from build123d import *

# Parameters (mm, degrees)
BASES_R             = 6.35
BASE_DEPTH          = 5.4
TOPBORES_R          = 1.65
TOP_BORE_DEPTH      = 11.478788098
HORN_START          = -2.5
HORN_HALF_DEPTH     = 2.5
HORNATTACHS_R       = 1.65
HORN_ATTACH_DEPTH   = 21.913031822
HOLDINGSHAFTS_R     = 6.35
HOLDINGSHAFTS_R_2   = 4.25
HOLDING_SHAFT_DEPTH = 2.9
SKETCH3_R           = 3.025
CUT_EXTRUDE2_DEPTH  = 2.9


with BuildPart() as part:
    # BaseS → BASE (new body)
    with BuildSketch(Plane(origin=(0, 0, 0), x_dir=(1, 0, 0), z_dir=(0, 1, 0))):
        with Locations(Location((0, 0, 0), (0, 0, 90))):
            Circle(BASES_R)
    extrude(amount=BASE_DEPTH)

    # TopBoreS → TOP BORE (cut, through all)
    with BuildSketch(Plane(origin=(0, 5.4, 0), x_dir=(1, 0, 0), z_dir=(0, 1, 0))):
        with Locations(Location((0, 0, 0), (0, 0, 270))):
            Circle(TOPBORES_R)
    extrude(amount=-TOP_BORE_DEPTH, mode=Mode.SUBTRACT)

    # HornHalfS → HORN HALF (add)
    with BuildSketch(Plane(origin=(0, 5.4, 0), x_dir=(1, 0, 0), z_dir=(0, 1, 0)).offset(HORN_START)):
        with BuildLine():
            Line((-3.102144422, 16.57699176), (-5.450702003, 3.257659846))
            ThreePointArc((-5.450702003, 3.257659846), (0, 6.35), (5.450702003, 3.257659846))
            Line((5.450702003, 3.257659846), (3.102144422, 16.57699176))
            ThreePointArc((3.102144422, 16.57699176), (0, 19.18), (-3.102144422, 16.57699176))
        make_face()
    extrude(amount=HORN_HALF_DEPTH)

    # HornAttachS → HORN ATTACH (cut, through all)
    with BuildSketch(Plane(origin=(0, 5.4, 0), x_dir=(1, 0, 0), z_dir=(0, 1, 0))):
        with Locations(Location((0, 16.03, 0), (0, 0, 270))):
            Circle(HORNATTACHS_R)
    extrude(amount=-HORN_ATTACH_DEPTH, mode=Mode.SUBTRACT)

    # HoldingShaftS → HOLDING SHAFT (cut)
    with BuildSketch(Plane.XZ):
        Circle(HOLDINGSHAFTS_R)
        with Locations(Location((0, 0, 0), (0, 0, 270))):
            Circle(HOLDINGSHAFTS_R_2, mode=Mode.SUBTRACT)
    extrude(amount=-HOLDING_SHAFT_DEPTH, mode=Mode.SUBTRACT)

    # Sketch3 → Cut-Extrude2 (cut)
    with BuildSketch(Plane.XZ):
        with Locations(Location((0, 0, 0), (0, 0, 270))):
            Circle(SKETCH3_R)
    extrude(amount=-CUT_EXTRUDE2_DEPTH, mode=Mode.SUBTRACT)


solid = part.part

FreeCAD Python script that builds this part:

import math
import FreeCAD as App
import Part
import Sketcher
Q = App.Units.Quantity

doc = App.newDocument("Part")
params = doc.addObject("Spreadsheet::Sheet", "Params")
for row, (alias, value) in enumerate([
    ("sketch1_diameter", "12.7 mm"),
    ("pad1_length", "5.4 mm"),
    ("sketch2_diameter", "3.3 mm"),
    ("sketch3_radius", "6.35 mm"),
    ("sketch3_radius2", "3.15 mm"),
    ("pad2_length", "2.5 mm"),
    ("sketch4_diameter", "3.3 mm"),
    ("sketch5_diameter", "12.7 mm"),
    ("sketch5_diameter2", "8.5 mm"),
    ("pocket3_length", "2.9 mm"),
    ("sketch6_diameter", "6.05 mm"),
    ("pocket4_length", "2.9 mm"),
], start=1):
    params.set(f"A{row}", alias)
    params.set(f"B{row}", "=" + value)
    params.setAlias(f"B{row}", alias)

body = doc.addObject("PartDesign::Body", "Body")

# Sketch on XZ plane
sketch1 = body.newObject("Sketcher::SketchObject", "Sketch")
sketch1.AttachmentSupport = (doc.getObject("XZ_Plane"), [""])
sketch1.MapMode = "FlatFace"
sketch1.addGeometry(Part.Circle(App.Vector(0, 0, 0), App.Vector(0, 0, 1), 6), False)
sketch1.addConstraint(Sketcher.Constraint("Coincident", 0, 3, -1, 1))
sketch1.addConstraint(Sketcher.Constraint("Diameter", 0, Q("12.7 mm")))
sketch1.setExpression("Constraints[1]", "Params.sketch1_diameter")
pad1 = body.newObject("PartDesign::Pad", "Pad")
pad1.Profile = sketch1
pad1.setExpression("Length", "Params.pad1_length")
pad1.Reversed = True

# Sketch on XZ plane
sketch2 = body.newObject("Sketcher::SketchObject", "Sketch001")
sketch2.AttachmentSupport = (doc.getObject("XZ_Plane"), [""])
sketch2.MapMode = "FlatFace"
sketch2.AttachmentOffset = App.Placement(App.Vector(0, 0, -5.4), App.Rotation())
sketch2.addGeometry(Part.Circle(App.Vector(0, 0, 0), App.Vector(0, 0, 1), 1.6), False)
sketch2.addConstraint(Sketcher.Constraint("Coincident", 0, 3, -1, 1))
sketch2.addConstraint(Sketcher.Constraint("Diameter", 0, Q("3.3 mm")))
sketch2.setExpression("Constraints[1]", "Params.sketch2_diameter")
pocket1 = body.newObject("PartDesign::Pocket", "Pocket")
pocket1.Profile = sketch2
pocket1.Type = "ThroughAll"
pocket1.Reversed = True

# Sketch on XZ plane
sketch3 = body.newObject("Sketcher::SketchObject", "Sketch002")
sketch3.AttachmentSupport = (doc.getObject("XZ_Plane"), [""])
sketch3.MapMode = "FlatFace"
sketch3.AttachmentOffset = App.Placement(App.Vector(0, 0, -2.9), App.Rotation())
sketch3.addGeometry(Part.LineSegment(App.Vector(-3.1, -16.6, 0), App.Vector(-5.5, -3.3, 0)), False)
sketch3.addGeometry(Part.ArcOfCircle(Part.Circle(App.Vector(0, 0, 0), App.Vector(0, 0, 1), 6.3), math.radians(-149), math.radians(-31)), False)
sketch3.addGeometry(Part.LineSegment(App.Vector(5.5, -3.3, 0), App.Vector(3.1, -16.6, 0)), False)
sketch3.addGeometry(Part.ArcOfCircle(Part.Circle(App.Vector(0, -16, 0), App.Vector(0, 0, 1), 3.1), math.radians(-170), math.radians(-10)), False)
sketch3.addConstraint(Sketcher.Constraint("Coincident", 0, 2, 1, 1))
sketch3.addConstraint(Sketcher.Constraint("Coincident", 1, 2, 2, 1))
sketch3.addConstraint(Sketcher.Constraint("Tangent", 2, 2, 3, 2))
sketch3.addConstraint(Sketcher.Constraint("Tangent", 3, 1, 0, 1))
sketch3.addConstraint(Sketcher.Constraint("Coincident", 1, 3, -1, 1))
sketch3.addConstraint(Sketcher.Constraint("Symmetric", 2, 2, 3, 1, -2))
sketch3.addConstraint(Sketcher.Constraint("Angle", 0, Q("100 deg")))
sketch3.addConstraint(Sketcher.Constraint("Radius", 1, Q("6.35 mm")))
sketch3.addConstraint(Sketcher.Constraint("Radius", 3, Q("3.15 mm")))
sketch3.addConstraint(Sketcher.Constraint("DistanceY", 3, 3, -1, 1, Q("16.03 mm")))
sketch3.setExpression("Constraints[7]", "Params.sketch3_radius")
sketch3.setExpression("Constraints[8]", "Params.sketch3_radius2")
pad2 = body.newObject("PartDesign::Pad", "Pad001")
pad2.Profile = sketch3
pad2.setExpression("Length", "Params.pad2_length")
pad2.Reversed = True

# Sketch on XZ plane
sketch4 = body.newObject("Sketcher::SketchObject", "Sketch003")
sketch4.AttachmentSupport = (doc.getObject("XZ_Plane"), [""])
sketch4.MapMode = "FlatFace"
sketch4.AttachmentOffset = App.Placement(App.Vector(0, 0, -5.4), App.Rotation())
sketch4.addGeometry(Part.Circle(App.Vector(0, -16, 0), App.Vector(0, 0, 1), 1.6), False)
sketch4.addConstraint(Sketcher.Constraint("PointOnObject", 0, 3, -2))
sketch4.addConstraint(Sketcher.Constraint("Diameter", 0, Q("3.3 mm")))
sketch4.addConstraint(Sketcher.Constraint("DistanceY", 0, 3, -1, 1, Q("16.03 mm")))
sketch4.setExpression("Constraints[1]", "Params.sketch4_diameter")
pocket2 = body.newObject("PartDesign::Pocket", "Pocket001")
pocket2.Profile = sketch4
pocket2.Type = "ThroughAll"
pocket2.Reversed = True

# Sketch on XZ plane
sketch5 = body.newObject("Sketcher::SketchObject", "Sketch004")
sketch5.AttachmentSupport = (doc.getObject("XZ_Plane"), [""])
sketch5.MapMode = "FlatFace"
sketch5.addGeometry(Part.Circle(App.Vector(0, 0, 0), App.Vector(0, 0, 1), 6.3), False)
sketch5.addGeometry(Part.Circle(App.Vector(0, 0, 0), App.Vector(0, 0, 1), 4.2), False)
sketch5.addConstraint(Sketcher.Constraint("Coincident", 0, 3, -1, 1))
sketch5.addConstraint(Sketcher.Constraint("Coincident", 1, 3, -1, 1))
sketch5.addConstraint(Sketcher.Constraint("Diameter", 0, Q("12.7 mm")))
sketch5.addConstraint(Sketcher.Constraint("Diameter", 1, Q("8.5 mm")))
sketch5.setExpression("Constraints[2]", "Params.sketch5_diameter")
sketch5.setExpression("Constraints[3]", "Params.sketch5_diameter2")
pocket3 = body.newObject("PartDesign::Pocket", "Pocket002")
pocket3.Profile = sketch5
pocket3.setExpression("Length", "Params.pocket3_length")

# Sketch on XZ plane
sketch6 = body.newObject("Sketcher::SketchObject", "Sketch005")
sketch6.AttachmentSupport = (doc.getObject("XZ_Plane"), [""])
sketch6.MapMode = "FlatFace"
sketch6.addGeometry(Part.Circle(App.Vector(0, 0, 0), App.Vector(0, 0, 1), 3), False)
sketch6.addConstraint(Sketcher.Constraint("Coincident", 0, 3, -1, 1))
sketch6.addConstraint(Sketcher.Constraint("Diameter", 0, Q("6.05 mm")))
sketch6.setExpression("Constraints[1]", "Params.sketch6_diameter")
pocket4 = body.newObject("PartDesign::Pocket", "Pocket003")
pocket4.Profile = sketch6
pocket4.setExpression("Length", "Params.pocket4_length")

doc.recompute()
